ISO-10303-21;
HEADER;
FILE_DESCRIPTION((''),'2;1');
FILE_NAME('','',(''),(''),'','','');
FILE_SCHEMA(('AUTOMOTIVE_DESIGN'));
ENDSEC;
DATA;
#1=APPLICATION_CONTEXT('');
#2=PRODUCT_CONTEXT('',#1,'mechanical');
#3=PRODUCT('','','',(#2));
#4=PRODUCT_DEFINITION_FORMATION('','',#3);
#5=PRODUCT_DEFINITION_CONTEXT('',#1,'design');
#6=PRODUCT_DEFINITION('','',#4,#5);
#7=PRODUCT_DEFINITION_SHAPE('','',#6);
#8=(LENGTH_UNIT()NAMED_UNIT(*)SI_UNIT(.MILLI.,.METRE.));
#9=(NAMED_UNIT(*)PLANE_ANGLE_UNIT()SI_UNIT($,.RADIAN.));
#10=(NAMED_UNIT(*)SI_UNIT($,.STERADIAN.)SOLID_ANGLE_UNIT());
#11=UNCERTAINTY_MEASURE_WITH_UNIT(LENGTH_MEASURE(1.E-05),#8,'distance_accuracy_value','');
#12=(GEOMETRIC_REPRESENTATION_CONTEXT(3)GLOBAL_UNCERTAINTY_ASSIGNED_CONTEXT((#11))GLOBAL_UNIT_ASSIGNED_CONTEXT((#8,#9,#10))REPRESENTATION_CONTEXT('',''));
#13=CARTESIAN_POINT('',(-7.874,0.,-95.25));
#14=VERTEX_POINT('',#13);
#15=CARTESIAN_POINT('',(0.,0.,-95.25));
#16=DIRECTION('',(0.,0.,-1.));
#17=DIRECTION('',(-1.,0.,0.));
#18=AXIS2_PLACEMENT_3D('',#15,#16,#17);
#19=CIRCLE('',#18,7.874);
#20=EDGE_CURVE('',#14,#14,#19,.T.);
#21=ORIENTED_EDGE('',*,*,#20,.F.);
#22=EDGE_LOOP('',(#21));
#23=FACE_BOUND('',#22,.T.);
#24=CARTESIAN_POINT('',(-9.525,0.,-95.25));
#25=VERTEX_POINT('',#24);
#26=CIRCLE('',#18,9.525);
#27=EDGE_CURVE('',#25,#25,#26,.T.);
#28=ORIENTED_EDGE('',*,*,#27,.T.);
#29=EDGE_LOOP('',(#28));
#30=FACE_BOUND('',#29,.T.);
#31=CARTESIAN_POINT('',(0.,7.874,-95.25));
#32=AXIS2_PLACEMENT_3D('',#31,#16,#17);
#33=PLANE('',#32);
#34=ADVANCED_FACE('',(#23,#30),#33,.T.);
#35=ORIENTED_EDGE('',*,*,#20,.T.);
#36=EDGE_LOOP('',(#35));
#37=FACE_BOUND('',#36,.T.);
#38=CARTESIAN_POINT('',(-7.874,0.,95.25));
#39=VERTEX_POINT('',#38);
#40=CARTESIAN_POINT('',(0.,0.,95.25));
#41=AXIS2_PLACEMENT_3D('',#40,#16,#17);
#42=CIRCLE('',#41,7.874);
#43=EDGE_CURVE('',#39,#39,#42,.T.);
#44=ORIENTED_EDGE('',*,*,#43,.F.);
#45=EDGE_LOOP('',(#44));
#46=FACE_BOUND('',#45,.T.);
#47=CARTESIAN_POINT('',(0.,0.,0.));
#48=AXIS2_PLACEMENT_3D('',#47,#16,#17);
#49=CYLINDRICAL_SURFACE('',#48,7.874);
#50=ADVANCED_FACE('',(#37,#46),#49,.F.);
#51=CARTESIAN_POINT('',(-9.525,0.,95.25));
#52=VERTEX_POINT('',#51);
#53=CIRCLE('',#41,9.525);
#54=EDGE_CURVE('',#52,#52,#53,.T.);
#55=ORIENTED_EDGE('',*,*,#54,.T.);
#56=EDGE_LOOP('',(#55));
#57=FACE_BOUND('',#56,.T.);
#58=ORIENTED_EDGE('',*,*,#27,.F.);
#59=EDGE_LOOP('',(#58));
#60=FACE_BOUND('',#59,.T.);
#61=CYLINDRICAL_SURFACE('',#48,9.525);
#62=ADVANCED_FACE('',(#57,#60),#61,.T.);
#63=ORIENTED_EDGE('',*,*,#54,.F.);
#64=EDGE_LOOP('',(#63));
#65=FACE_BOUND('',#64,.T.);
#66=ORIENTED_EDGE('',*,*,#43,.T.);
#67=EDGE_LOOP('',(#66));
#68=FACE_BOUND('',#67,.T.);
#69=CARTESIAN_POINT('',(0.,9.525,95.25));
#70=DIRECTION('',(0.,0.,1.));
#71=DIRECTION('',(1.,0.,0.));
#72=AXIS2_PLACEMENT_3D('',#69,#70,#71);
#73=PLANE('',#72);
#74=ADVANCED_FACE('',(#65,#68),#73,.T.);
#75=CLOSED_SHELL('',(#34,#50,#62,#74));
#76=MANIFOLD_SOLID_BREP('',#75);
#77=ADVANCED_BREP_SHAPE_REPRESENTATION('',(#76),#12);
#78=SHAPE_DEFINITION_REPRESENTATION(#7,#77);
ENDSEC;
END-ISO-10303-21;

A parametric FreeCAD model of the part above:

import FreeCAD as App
import Part
import Sketcher

V = App.Vector
Q = App.Units.Quantity

doc = App.newDocument("Part")
params = doc.addObject("Spreadsheet::Sheet", "Params")
for row, (alias, value) in enumerate([
    ("sketch1_height", "7.5 in"),
    ("sketch1_width", "0.065 in"),
    ("revolution_angle", "360 deg"),
], start=1):
    params.set(f"A{row}", alias)
    params.set(f"B{row}", "=" + value)
    params.setAlias(f"B{row}", alias)

body = doc.addObject("PartDesign::Body", "Body")

# Sketch on YZ plane
sketch1 = body.newObject("Sketcher::SketchObject", "Sketch")
sketch1.AttachmentSupport = (doc.getObject("YZ_Plane"), [""])
sketch1.MapMode = "FlatFace"
sketch1.addGeometry(Part.LineSegment(V(9.525, 95.25, 0), V(7.874, 95.25, 0)), False)
sketch1.addGeometry(Part.LineSegment(V(7.874, 95.25, 0), V(7.874, -95.25, 0)), False)
sketch1.addGeometry(Part.LineSegment(V(7.874, -95.25, 0), V(9.525, -95.25, 0)), False)
sketch1.addGeometry(Part.LineSegment(V(9.525, -95.25, 0), V(9.525, 95.25, 0)), False)
sketch1.addConstraint(Sketcher.Constraint("Coincident", 0, 2, 1, 1))
sketch1.addConstraint(Sketcher.Constraint("Coincident", 1, 2, 2, 1))
sketch1.addConstraint(Sketcher.Constraint("Coincident", 2, 2, 3, 1))
sketch1.addConstraint(Sketcher.Constraint("Coincident", 3, 2, 0, 1))
sketch1.addConstraint(Sketcher.Constraint("Horizontal", 0))
sketch1.addConstraint(Sketcher.Constraint("Vertical", 1))
sketch1.addConstraint(Sketcher.Constraint("Horizontal", 2))
sketch1.addConstraint(Sketcher.Constraint("Vertical", 3))
sketch1.addConstraint(Sketcher.Constraint("DistanceY", 1, 2, 1, 1, Q("7.5 in")))
sketch1.addConstraint(Sketcher.Constraint("DistanceX", 0, 2, 0, 1, Q("0.065 in")))
sketch1.addConstraint(Sketcher.Constraint("DistanceX", -1, 1, 0, 2, Q("0.31 in")))
sketch1.addConstraint(Sketcher.Constraint("DistanceY", -1, 1, 0, 2, Q("3.75 in")))
sketch1.setExpression("Constraints[8]", "Params.sketch1_height")
sketch1.setExpression("Constraints[9]", "Params.sketch1_width")
revolution = body.newObject("PartDesign::Revolution", "Revolution")
revolution.Profile = sketch1
revolution.ReferenceAxis = (sketch1, ["V_Axis"])
revolution.setExpression("Angle", "Params.revolution_angle")

doc.recompute()
